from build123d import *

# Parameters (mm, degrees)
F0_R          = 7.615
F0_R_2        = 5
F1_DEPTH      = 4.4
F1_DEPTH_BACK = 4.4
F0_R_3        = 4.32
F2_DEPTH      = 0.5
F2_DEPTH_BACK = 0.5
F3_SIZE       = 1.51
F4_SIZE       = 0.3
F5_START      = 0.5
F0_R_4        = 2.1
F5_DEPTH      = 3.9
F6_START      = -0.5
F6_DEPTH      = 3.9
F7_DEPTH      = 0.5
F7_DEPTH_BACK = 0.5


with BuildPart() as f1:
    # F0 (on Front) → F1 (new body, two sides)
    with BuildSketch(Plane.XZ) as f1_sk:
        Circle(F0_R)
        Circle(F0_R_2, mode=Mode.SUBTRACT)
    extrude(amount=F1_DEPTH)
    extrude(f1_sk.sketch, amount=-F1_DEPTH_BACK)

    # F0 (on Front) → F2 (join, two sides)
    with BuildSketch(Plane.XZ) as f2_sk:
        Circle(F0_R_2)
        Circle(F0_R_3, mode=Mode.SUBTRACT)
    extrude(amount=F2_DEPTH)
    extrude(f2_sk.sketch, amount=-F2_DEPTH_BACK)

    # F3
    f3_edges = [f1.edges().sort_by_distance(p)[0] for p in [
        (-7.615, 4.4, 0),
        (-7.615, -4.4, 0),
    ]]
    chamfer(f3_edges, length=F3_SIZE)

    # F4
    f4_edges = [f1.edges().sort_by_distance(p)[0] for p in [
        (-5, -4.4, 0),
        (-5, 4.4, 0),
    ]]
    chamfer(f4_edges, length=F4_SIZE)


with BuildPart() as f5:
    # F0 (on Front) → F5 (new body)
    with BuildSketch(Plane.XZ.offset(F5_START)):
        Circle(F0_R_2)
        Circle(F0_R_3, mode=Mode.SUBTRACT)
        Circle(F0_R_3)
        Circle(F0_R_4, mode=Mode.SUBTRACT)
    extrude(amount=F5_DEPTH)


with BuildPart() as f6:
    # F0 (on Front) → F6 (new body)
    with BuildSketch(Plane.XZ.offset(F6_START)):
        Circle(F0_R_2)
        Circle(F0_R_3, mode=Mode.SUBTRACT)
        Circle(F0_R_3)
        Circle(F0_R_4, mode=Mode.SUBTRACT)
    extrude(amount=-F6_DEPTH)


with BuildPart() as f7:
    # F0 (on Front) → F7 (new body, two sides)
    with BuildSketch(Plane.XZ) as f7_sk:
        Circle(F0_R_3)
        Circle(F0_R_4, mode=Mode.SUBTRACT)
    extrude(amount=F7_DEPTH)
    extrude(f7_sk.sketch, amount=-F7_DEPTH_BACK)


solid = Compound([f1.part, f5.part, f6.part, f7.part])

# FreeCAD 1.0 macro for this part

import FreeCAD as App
import Part
import Sketcher

V = App.Vector
Q = App.Units.Quantity


def edges_at(feature, points):
    """Names of the edges that pass closest to the given points."""
    edges = feature.Shape.Edges
    near = lambda p: min(range(len(edges)), key=lambda i: edges[i].distToShape(Part.Vertex(*p))[0])
    return sorted({f"Edge{near(p) + 1}" for p in points})

doc = App.newDocument("Part")
body = doc.addObject("PartDesign::Body", "Body")

# Sketch on XZ plane
sketch1 = doc.addObject("Sketcher::SketchObject", "Sketch")
body.addObject(sketch1)
sketch1.AttachmentSupport = (doc.XZ_Plane, [""])
sketch1.MapMode = "FlatFace"
sketch1.addGeometry([
    Part.Circle(V(0, 0, 0), V(0, 0, 1), 8),
    Part.Circle(V(0, 0, 0), V(0, 0, 1), 5),
], False)
sketch1.addConstraint([
    Sketcher.Constraint("Coincident", 0, 3, -1, 1),
    Sketcher.Constraint("Coincident", 1, 3, -1, 1),
    Sketcher.Constraint("Diameter", 1, Q("10 mm")),
    Sketcher.Constraint("Diameter", 0, Q("15.23 mm")),
])
pad1 = doc.addObject("PartDesign::Pad", "Pad")
body.addObject(pad1)
pad1.Profile = sketch1
pad1.Type = "TwoLengths"
pad1.Length = 4.4
pad1.Length2 = 4.4

# Sketch on XZ plane
sketch2 = doc.addObject("Sketcher::SketchObject", "Sketch001")
body.addObject(sketch2)
sketch2.AttachmentSupport = (doc.XZ_Plane, [""])
sketch2.MapMode = "FlatFace"
sketch2.addGeometry([
    Part.Circle(V(0, 0, 0), V(0, 0, 1), 5),
    Part.Circle(V(0, 0, 0), V(0, 0, 1), 4.3),
], False)
sketch2.addConstraint([
    Sketcher.Constraint("Coincident", 0, 3, -1, 1),
    Sketcher.Constraint("Coincident", 1, 3, -1, 1),
    Sketcher.Constraint("Diameter", 0, Q("10 mm")),
    Sketcher.Constraint("Diameter", 1, Q("8.64 mm")),
])
pad2 = doc.addObject("PartDesign::Pad", "Pad001")
body.addObject(pad2)
pad2.Profile = sketch2
pad2.Type = "TwoLengths"
pad2.Length = 0.5
pad2.Length2 = 0.5
doc.recompute()

chamfer = doc.addObject("PartDesign::Chamfer", "Chamfer")
body.addObject(chamfer)
chamfer.Base = (pad2, edges_at(pad2, [(-7.615, 4.4, 0), (-7.615, -4.4, 0)]))
chamfer.Size = 1.51
doc.recompute()

chamfer2 = doc.addObject("PartDesign::Chamfer", "Chamfer001")
body.addObject(chamfer2)
chamfer2.Base = (chamfer, edges_at(chamfer, [(-5, -4.4, 0), (-5, 4.4, 0)]))
chamfer2.Size = 0.3
body2 = doc.addObject("PartDesign::Body", "Body001")

# Sketch on XZ plane
sketch3 = doc.addObject("Sketcher::SketchObject", "Sketch002")
body2.addObject(sketch3)
sketch3.AttachmentSupport = (doc.getObject("XZ_Plane001"), [""])
sketch3.MapMode = "FlatFace"
sketch3.AttachmentOffset = App.Placement(V(0, 0, 0.5), App.Rotation())
sketch3.addGeometry([
    Part.Circle(V(0, 0, 0), V(0, 0, 1), 5),
    Part.Circle(V(0, 0, 0), V(0, 0, 1), 2.1),
], False)
sketch3.addConstraint([
    Sketcher.Constraint("Coincident", 0, 3, -1, 1),
    Sketcher.Constraint("Coincident", 1, 3, -1, 1),
    Sketcher.Constraint("Diameter", 0, Q("10 mm")),
    Sketcher.Constraint("Diameter", 1, Q("4.2 mm")),
])
pad3 = doc.addObject("PartDesign::Pad", "Pad002")
body2.addObject(pad3)
pad3.Profile = sketch3
pad3.Length = 3.9
body3 = doc.addObject("PartDesign::Body", "Body002")

# Sketch on XZ plane
sketch4 = doc.addObject("Sketcher::SketchObject", "Sketch003")
body3.addObject(sketch4)
sketch4.AttachmentSupport = (doc.getObject("XZ_Plane002"), [""])
sketch4.MapMode = "FlatFace"
sketch4.AttachmentOffset = App.Placement(V(0, 0, -0.5), App.Rotation())
sketch4.addGeometry([
    Part.Circle(V(0, 0, 0), V(0, 0, 1), 5),
    Part.Circle(V(0, 0, 0), V(0, 0, 1), 2.1),
], False)
sketch4.addConstraint([
    Sketcher.Constraint("Coincident", 0, 3, -1, 1),
    Sketcher.Constraint("Coincident", 1, 3, -1, 1),
    Sketcher.Constraint("Diameter", 0, Q("10 mm")),
    Sketcher.Constraint("Diameter", 1, Q("4.2 mm")),
])
pad4 = doc.addObject("PartDesign::Pad", "Pad003")
body3.addObject(pad4)
pad4.Profile = sketch4
pad4.Length = 3.9
pad4.Reversed = True
body4 = doc.addObject("PartDesign::Body", "Body003")

# Sketch on XZ plane
sketch5 = doc.addObject("Sketcher::SketchObject", "Sketch004")
body4.addObject(sketch5)
sketch5.AttachmentSupport = (doc.getObject("XZ_Plane003"), [""])
sketch5.MapMode = "FlatFace"
sketch5.addGeometry([
    Part.Circle(V(0, 0, 0), V(0, 0, 1), 4.3),
    Part.Circle(V(0, 0, 0), V(0, 0, 1), 2.1),
], False)
sketch5.addConstraint([
    Sketcher.Constraint("Coincident", 0, 3, -1, 1),
    Sketcher.Constraint("Coincident", 1, 3, -1, 1),
    Sketcher.Constraint("Diameter", 1, Q("4.2 mm")),
    Sketcher.Constraint("Diameter", 0, Q("8.64 mm")),
])
pad5 = doc.addObject("PartDesign::Pad", "Pad004")
body4.addObject(pad5)
pad5.Profile = sketch5
pad5.Type = "TwoLengths"
pad5.Length = 0.5
pad5.Length2 = 0.5

doc.recompute()
